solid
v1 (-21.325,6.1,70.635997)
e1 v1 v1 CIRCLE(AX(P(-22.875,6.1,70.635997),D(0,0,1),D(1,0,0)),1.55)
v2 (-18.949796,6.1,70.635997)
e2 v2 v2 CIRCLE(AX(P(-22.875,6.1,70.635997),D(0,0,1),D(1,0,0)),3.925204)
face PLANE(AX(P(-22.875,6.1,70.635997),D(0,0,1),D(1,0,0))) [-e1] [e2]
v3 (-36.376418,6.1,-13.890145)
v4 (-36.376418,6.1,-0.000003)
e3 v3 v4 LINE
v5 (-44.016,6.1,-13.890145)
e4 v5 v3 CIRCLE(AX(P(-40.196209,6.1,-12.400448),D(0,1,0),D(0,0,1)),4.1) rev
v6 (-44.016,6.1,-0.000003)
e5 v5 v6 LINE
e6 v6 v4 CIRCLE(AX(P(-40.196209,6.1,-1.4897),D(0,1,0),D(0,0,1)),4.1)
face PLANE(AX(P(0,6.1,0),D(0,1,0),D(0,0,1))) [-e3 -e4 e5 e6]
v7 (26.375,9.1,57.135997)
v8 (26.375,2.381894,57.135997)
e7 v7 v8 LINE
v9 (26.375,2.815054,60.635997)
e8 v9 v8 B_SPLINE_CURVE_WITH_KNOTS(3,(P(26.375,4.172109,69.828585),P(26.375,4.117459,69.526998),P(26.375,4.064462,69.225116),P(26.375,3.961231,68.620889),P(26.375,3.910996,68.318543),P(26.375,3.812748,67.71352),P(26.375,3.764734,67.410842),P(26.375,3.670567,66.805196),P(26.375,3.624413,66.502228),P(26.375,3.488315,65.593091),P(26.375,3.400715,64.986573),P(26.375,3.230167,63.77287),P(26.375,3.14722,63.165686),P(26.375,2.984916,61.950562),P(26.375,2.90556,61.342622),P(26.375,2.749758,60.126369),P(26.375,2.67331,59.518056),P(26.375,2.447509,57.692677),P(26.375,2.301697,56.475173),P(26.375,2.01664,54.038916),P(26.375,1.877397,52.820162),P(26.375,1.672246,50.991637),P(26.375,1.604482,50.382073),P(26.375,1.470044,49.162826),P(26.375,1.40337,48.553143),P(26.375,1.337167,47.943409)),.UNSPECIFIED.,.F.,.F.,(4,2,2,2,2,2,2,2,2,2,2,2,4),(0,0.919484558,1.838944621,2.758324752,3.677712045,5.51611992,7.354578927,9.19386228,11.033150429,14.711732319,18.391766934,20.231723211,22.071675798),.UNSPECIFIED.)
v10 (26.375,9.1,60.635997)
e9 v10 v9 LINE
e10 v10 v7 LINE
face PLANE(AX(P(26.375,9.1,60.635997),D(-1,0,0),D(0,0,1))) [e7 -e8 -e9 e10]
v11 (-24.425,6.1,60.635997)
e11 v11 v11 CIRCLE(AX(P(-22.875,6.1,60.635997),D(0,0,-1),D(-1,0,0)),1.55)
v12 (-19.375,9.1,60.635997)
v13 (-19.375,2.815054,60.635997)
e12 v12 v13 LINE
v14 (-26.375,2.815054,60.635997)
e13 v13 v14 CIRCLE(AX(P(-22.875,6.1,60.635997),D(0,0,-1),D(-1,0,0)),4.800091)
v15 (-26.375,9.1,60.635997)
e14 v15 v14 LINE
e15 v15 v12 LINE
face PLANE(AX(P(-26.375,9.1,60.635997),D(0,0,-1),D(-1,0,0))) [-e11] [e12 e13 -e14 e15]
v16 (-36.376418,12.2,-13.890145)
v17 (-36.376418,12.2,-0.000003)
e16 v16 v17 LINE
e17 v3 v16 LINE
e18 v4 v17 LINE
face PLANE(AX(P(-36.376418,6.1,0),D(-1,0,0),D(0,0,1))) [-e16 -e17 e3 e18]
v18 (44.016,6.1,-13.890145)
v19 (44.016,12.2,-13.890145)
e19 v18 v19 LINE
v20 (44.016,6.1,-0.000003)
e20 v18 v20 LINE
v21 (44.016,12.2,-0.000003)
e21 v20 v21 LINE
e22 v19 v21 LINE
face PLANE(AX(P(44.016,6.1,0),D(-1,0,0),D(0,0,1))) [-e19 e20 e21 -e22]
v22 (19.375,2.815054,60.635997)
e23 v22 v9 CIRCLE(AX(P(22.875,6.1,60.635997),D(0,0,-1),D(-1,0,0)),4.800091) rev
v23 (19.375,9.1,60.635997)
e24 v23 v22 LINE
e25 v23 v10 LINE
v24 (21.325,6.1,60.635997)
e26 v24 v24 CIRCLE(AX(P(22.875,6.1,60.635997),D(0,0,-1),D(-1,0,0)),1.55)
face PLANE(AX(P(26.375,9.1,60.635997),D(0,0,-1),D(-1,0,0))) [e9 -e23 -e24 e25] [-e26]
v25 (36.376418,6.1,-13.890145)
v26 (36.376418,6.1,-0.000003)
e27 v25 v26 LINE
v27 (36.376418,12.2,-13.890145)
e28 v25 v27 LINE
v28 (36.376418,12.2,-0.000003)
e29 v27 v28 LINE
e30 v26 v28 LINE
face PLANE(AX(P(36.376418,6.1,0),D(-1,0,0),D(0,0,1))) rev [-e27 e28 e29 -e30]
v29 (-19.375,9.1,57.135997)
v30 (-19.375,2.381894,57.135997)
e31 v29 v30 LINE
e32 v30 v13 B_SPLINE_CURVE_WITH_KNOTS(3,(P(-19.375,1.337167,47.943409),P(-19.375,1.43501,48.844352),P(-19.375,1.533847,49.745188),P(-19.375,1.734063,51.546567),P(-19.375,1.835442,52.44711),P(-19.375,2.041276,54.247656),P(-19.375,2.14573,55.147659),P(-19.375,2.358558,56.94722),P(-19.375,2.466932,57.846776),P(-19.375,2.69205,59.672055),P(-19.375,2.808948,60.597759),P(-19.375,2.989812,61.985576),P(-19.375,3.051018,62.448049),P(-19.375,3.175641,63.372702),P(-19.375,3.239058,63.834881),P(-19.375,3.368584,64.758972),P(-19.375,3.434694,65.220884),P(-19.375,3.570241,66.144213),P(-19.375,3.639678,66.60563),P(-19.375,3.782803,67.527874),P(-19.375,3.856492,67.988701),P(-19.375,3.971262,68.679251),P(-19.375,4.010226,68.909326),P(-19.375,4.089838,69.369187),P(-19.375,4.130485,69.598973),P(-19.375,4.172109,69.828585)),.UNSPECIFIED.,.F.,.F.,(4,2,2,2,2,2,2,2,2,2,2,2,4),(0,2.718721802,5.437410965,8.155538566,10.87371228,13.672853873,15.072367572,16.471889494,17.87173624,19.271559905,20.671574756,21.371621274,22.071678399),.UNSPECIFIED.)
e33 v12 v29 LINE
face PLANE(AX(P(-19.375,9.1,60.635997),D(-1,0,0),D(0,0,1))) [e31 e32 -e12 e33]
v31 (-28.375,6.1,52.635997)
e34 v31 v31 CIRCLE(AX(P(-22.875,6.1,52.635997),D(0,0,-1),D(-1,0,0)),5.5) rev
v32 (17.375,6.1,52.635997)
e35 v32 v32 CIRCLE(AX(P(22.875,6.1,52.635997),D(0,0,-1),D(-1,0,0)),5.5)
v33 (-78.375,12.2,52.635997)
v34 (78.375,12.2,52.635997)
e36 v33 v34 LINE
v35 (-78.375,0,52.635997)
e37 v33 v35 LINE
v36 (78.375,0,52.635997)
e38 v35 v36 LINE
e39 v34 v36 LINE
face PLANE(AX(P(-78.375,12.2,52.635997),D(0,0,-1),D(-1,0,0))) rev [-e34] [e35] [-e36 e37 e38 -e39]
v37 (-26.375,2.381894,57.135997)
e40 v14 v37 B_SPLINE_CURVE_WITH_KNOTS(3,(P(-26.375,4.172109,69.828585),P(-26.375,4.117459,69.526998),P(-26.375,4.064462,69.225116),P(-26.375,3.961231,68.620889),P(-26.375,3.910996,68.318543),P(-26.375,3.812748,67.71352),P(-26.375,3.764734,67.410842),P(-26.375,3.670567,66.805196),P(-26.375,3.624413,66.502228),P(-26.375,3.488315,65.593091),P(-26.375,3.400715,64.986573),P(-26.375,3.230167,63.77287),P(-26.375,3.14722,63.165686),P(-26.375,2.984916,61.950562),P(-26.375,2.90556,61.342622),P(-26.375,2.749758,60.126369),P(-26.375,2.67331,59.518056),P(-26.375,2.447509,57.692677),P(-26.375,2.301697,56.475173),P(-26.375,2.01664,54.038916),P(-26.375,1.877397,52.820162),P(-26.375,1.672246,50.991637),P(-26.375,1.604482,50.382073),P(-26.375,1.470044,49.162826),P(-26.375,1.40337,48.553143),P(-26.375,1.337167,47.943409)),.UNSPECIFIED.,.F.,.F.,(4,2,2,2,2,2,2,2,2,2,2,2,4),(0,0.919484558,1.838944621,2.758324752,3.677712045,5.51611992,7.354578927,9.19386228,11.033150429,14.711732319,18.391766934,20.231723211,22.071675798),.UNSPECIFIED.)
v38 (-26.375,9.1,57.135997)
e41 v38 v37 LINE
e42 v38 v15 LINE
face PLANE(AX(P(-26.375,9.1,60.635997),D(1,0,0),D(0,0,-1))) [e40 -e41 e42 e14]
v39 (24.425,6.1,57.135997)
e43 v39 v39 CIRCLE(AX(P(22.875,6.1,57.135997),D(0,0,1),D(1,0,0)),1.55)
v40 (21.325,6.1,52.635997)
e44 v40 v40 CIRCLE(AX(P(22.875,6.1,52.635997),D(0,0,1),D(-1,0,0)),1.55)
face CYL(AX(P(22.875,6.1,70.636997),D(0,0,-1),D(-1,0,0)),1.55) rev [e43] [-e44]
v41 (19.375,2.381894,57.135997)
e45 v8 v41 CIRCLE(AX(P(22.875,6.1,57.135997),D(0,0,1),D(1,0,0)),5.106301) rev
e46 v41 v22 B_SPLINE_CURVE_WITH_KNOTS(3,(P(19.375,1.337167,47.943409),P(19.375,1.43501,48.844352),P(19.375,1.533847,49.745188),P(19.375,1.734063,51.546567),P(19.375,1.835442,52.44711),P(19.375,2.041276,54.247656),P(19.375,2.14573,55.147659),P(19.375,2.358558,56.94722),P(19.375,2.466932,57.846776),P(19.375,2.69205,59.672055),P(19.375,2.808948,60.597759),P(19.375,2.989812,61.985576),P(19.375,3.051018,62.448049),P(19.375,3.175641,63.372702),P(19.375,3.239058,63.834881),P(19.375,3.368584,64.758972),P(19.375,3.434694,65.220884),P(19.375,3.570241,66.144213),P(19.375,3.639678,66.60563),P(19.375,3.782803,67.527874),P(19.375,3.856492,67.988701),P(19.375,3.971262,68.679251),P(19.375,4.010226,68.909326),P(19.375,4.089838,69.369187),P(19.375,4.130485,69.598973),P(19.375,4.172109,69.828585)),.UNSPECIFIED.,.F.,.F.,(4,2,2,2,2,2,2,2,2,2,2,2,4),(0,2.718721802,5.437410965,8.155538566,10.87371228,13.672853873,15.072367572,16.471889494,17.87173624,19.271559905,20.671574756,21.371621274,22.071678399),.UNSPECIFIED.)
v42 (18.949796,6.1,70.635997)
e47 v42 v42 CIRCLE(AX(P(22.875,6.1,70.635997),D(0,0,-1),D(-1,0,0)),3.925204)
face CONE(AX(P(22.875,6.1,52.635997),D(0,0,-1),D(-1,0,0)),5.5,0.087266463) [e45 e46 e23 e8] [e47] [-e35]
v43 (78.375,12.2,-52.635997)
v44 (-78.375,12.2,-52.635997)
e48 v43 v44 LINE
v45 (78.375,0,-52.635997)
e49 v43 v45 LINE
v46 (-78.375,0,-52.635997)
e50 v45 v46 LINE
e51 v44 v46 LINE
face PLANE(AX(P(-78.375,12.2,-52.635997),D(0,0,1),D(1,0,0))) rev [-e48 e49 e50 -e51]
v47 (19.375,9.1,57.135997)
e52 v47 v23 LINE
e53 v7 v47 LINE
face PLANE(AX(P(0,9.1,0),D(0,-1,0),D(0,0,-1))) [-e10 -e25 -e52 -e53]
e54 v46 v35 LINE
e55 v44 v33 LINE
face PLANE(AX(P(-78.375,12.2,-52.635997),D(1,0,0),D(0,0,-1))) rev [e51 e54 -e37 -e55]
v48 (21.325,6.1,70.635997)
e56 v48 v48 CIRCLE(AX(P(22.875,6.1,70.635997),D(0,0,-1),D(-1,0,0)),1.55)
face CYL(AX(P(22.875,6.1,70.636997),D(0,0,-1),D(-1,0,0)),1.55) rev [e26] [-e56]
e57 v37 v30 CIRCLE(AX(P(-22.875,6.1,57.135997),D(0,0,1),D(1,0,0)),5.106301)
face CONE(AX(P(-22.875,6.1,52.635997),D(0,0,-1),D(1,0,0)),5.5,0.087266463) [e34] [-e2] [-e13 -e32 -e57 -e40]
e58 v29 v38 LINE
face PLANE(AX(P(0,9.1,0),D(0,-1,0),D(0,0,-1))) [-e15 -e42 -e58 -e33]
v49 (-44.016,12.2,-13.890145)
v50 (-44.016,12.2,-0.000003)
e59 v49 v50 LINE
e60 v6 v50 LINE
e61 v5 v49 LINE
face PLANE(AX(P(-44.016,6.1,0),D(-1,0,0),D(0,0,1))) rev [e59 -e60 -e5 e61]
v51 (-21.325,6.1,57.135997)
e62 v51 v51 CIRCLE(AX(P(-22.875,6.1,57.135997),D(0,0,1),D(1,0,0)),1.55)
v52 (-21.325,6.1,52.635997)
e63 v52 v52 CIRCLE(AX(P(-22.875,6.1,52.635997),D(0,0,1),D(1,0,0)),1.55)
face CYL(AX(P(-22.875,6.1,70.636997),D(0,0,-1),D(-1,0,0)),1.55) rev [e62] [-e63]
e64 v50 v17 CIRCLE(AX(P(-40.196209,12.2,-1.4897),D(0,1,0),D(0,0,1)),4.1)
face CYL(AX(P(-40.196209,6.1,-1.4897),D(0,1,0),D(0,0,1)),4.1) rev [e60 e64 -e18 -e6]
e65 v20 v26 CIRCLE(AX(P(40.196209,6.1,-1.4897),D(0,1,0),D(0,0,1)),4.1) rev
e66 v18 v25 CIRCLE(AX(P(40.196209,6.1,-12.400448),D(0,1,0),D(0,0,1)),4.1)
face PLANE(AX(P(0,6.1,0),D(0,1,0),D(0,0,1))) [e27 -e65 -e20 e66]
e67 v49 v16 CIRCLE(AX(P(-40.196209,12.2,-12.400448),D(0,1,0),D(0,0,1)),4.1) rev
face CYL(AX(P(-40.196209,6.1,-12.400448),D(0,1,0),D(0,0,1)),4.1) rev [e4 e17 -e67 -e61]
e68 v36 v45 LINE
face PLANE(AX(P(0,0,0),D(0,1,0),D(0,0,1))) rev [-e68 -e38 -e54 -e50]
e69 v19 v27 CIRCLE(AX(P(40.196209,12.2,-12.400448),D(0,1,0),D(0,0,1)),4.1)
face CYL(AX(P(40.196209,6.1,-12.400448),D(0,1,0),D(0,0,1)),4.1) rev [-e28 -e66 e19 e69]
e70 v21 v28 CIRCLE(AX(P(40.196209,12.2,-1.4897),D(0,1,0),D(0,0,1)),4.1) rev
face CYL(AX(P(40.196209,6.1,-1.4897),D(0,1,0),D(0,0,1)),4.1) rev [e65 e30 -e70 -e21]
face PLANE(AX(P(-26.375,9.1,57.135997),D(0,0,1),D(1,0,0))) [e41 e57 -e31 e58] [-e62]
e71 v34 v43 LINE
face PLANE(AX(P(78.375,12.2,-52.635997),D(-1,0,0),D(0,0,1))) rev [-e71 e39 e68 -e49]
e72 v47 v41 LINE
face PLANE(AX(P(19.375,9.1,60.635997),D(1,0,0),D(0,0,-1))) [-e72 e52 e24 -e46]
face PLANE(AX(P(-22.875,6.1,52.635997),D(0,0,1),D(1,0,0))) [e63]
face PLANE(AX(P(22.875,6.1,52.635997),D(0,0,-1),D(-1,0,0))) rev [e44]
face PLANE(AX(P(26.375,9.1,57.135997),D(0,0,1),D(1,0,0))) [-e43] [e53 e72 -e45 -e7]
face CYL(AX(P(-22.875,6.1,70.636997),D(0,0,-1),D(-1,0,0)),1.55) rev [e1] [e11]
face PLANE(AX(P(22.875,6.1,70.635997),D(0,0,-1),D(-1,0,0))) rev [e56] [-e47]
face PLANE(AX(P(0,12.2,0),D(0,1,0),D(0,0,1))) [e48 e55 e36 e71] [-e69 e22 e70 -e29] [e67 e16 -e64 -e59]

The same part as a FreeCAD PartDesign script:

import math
import FreeCAD as App
import Part
import Sketcher
from FreeCAD import Vector

doc = App.newDocument("Part")
body = doc.addObject("PartDesign::Body", "Body")

# Sketch on XZ plane
sketch1 = body.newObject("Sketcher::SketchObject", "Sketch")
sketch1.AttachmentSupport = (doc.getObject("XZ_Plane"), [""])
sketch1.MapMode = "FlatFace"
sketch1.addGeometry([
    Part.LineSegment(Vector(-78, -53, 0), Vector(-78, 53, 0)),
    Part.LineSegment(Vector(-78, 53, 0), Vector(78, 53, 0)),
    Part.LineSegment(Vector(78, 53, 0), Vector(78, -53, 0)),
    Part.LineSegment(Vector(78, -53, 0), Vector(-78, -53, 0)),
], False)
sketch1.addConstraint([
    Sketcher.Constraint("Coincident", 0, 2, 1, 1),
    Sketcher.Constraint("Coincident", 1, 2, 2, 1),
    Sketcher.Constraint("Coincident", 2, 2, 3, 1),
    Sketcher.Constraint("Coincident", 3, 2, 0, 1),
    Sketcher.Constraint("Vertical", 0),
    Sketcher.Constraint("Horizontal", 1),
    Sketcher.Constraint("Vertical", 2),
    Sketcher.Constraint("Horizontal", 3),
    Sketcher.Constraint("Symmetric", 0, 2, 2, 2, -1, 1),
    Sketcher.Constraint("DistanceX", 1, 1, 1, 2, 156.75),
    Sketcher.Constraint("DistanceY", 0, 1, 0, 2, 105.271995),
])
pad1 = body.newObject("PartDesign::Pad", "Pad")
pad1.Profile = sketch1
pad1.Length = 12.2
pad1.Reversed = True

# Sketch on XZ plane
sketch2 = body.newObject("Sketcher::SketchObject", "Sketch001")
sketch2.AttachmentSupport = (doc.getObject("XZ_Plane"), [""])
sketch2.MapMode = "FlatFace"
sketch2.AttachmentOffset = App.Placement(Vector(0, 0, -12.2), App.Rotation())
sketch2.addGeometry([
    Part.ArcOfCircle(Part.Circle(Vector(-40.2, -12.4, 0), Vector(0, 0, 1), 4.1), math.radians(-159), math.radians(-21)),  # 0
    Part.LineSegment(Vector(-44, -13.9, 0), Vector(-44, 0, 0)),  # 1
    Part.ArcOfCircle(Part.Circle(Vector(-40.2, -1.5, 0), Vector(0, 0, 1), 4.1), math.radians(21), math.radians(159)),  # 2
    Part.LineSegment(Vector(-36.4, 0, 0), Vector(-36.4, -13.9, 0)),  # 3
    Part.ArcOfCircle(Part.Circle(Vector(40.2, -12.4, 0), Vector(0, 0, 1), 4.1), math.radians(-159), math.radians(-21)),  # 4
    Part.LineSegment(Vector(36.4, -13.9, 0), Vector(36.4, 0, 0)),  # 5
    Part.ArcOfCircle(Part.Circle(Vector(40.2, -1.5, 0), Vector(0, 0, 1), 4.1), math.radians(21), math.radians(159)),  # 6
    Part.LineSegment(Vector(44, 0, 0), Vector(44, -13.9, 0)),  # 7
], False)
sketch2.addConstraint([
    Sketcher.Constraint("Coincident", 0, 1, 1, 1),
    Sketcher.Constraint("Coincident", 1, 2, 2, 2),
    Sketcher.Constraint("Coincident", 2, 1, 3, 1),
    Sketcher.Constraint("Coincident", 3, 2, 0, 2),
    Sketcher.Constraint("Coincident", 4, 1, 5, 1),
    Sketcher.Constraint("Coincident", 5, 2, 6, 2),
    Sketcher.Constraint("Coincident", 6, 1, 7, 1),
    Sketcher.Constraint("Coincident", 7, 2, 4, 2),
    Sketcher.Constraint("Vertical", 1),
    Sketcher.Constraint("Vertical", 3),
    Sketcher.Constraint("Vertical", 5),
    Sketcher.Constraint("Vertical", 7),
    Sketcher.Constraint("Equal", 0, 2),
    Sketcher.Constraint("Equal", 2, 4),
    Sketcher.Constraint("Equal", 4, 6),
    Sketcher.Constraint("Symmetric", 2, 1, 5, 2, -1, 1),
    Sketcher.Constraint("Symmetric", 1, 2, 6, 1, -1, 1),
    Sketcher.Constraint("Symmetric", 0, 3, 4, 3, -2),
    Sketcher.Constraint("Symmetric", 2, 3, 6, 3, -2),
    Sketcher.Constraint("Horizontal", 0, 1, 3, 2),
    Sketcher.Constraint("Radius", 0, 4.1),
    Sketcher.Constraint("DistanceX", 0, 1, -1, 1, 44.016),
    Sketcher.Constraint("DistanceY", 2, 3, -1, 1, 1.4897),
    Sketcher.Constraint("DistanceY", 1, 1, 1, 2, 13.890142),
])
pocket1 = body.newObject("PartDesign::Pocket", "Pocket")
pocket1.Profile = sketch2
pocket1.Length = 6.1
pocket1.Reversed = True

# Sketch on XY plane
sketch3 = body.newObject("Sketcher::SketchObject", "Sketch002")
sketch3.AttachmentSupport = (doc.getObject("XY_Plane"), [""])
sketch3.MapMode = "FlatFace"
sketch3.AttachmentOffset = App.Placement(Vector(0, 0, 52.635997), App.Rotation())
sketch3.addGeometry([
    Part.Circle(Vector(-23, 6, 0), Vector(0, 0, 1), 6),
    Part.Circle(Vector(23, 6, 0), Vector(0, 0, 1), 6),
], False)
sketch3.addConstraint([
    Sketcher.Constraint("Equal", 0, 1),
    Sketcher.Constraint("Symmetric", 0, 3, 1, 3, -2),
    Sketcher.Constraint("Diameter", 0, 11.0),
    Sketcher.Constraint("DistanceY", -1, 1, 0, 3, 6.1),
    Sketcher.Constraint("DistanceX", 0, 3, 1, 3, 45.75),
])
pad2 = body.newObject("PartDesign::Pad", "Pad001")
pad2.Profile = sketch3
pad2.Length = 18
pad2.TaperAngle = -5

# Sketch on XY plane
sketch4 = body.newObject("Sketcher::SketchObject", "Sketch003")
sketch4.AttachmentSupport = (doc.getObject("XY_Plane"), [""])
sketch4.MapMode = "FlatFace"
sketch4.AttachmentOffset = App.Placement(Vector(0, 0, 52.635997), App.Rotation())
sketch4.addGeometry(Part.Circle(Vector(-22.9, 6.1, 0), Vector(0, 0, 1), 1.6), False)
sketch4.addConstraint([
    Sketcher.Constraint("Diameter", 0, 3.1),
    Sketcher.Constraint("DistanceY", -1, 1, 0, 3, 6.1),
    Sketcher.Constraint("DistanceX", 0, 3, -1, 1, 22.875),
])
pocket2 = body.newObject("PartDesign::Pocket", "Pocket001")
pocket2.Profile = sketch4
pocket2.Type = "UpToFirst"
pocket2.Reversed = True

# Sketch on XY plane
sketch5 = body.newObject("Sketcher::SketchObject", "Sketch004")
sketch5.AttachmentSupport = (doc.getObject("XY_Plane"), [""])
sketch5.MapMode = "FlatFace"
sketch5.AttachmentOffset = App.Placement(Vector(0, 0, 52.635997), App.Rotation())
sketch5.addGeometry(Part.Circle(Vector(22.9, 6.1, 0), Vector(0, 0, 1), 1.6), False)
sketch5.addConstraint([
    Sketcher.Constraint("Diameter", 0, 3.1),
    Sketcher.Constraint("DistanceY", -1, 1, 0, 3, 6.1),
    Sketcher.Constraint("DistanceX", -1, 1, 0, 3, 22.875),
])
pocket3 = body.newObject("PartDesign::Pocket", "Pocket002")
pocket3.Profile = sketch5
pocket3.Type = "UpToFirst"
pocket3.Reversed = True

# Sketch on XZ plane
sketch6 = body.newObject("Sketcher::SketchObject", "Sketch005")
sketch6.AttachmentSupport = (doc.getObject("XZ_Plane"), [""])
sketch6.MapMode = "FlatFace"
sketch6.addGeometry([
    Part.LineSegment(Vector(-26.4, 57.1, 0), Vector(-26.4, 60.6, 0)),  # 0
    Part.LineSegment(Vector(-26.4, 60.6, 0), Vector(-19.4, 60.6, 0)),  # 1
    Part.LineSegment(Vector(-19.4, 60.6, 0), Vector(-19.4, 57.1, 0)),  # 2
    Part.LineSegment(Vector(-19.4, 57.1, 0), Vector(-26.4, 57.1, 0)),  # 3
    Part.LineSegment(Vector(19.4, 57.1, 0), Vector(19.4, 60.6, 0)),  # 4
    Part.LineSegment(Vector(19.4, 60.6, 0), Vector(26.4, 60.6, 0)),  # 5
    Part.LineSegment(Vector(26.4, 60.6, 0), Vector(26.4, 57.1, 0)),  # 6
    Part.LineSegment(Vector(26.4, 57.1, 0), Vector(19.4, 57.1, 0)),  # 7
], False)
sketch6.addConstraint([
    Sketcher.Constraint("Coincident", 0, 2, 1, 1),
    Sketcher.Constraint("Coincident", 1, 2, 2, 1),
    Sketcher.Constraint("Coincident", 2, 2, 3, 1),
    Sketcher.Constraint("Coincident", 3, 2, 0, 1),
    Sketcher.Constraint("Coincident", 4, 2, 5, 1),
    Sketcher.Constraint("Coincident", 5, 2, 6, 1),
    Sketcher.Constraint("Coincident", 6, 2, 7, 1),
    Sketcher.Constraint("Coincident", 7, 2, 4, 1),
    Sketcher.Constraint("Vertical", 0),
    Sketcher.Constraint("Horizontal", 1),
    Sketcher.Constraint("Vertical", 2),
    Sketcher.Constraint("Horizontal", 3),
    Sketcher.Constraint("Vertical", 4),
    Sketcher.Constraint("Horizontal", 5),
    Sketcher.Constraint("Vertical", 6),
    Sketcher.Constraint("Horizontal", 7),
    Sketcher.Constraint("Symmetric", 1, 2, 4, 2, -2),
    Sketcher.Constraint("Symmetric", 3, 2, 6, 2, -2),
    Sketcher.Constraint("DistanceX", 1, 1, 1, 2, 7.0),
    Sketcher.Constraint("DistanceY", 0, 1, 0, 2, 3.5),
    Sketcher.Constraint("DistanceX", 1, 2, 4, 2, 38.75),
    Sketcher.Constraint("DistanceY", -1, 1, 0, 2, 60.635997),
])
pocket4 = body.newObject("PartDesign::Pocket", "Pocket003")
pocket4.Profile = sketch6
pocket4.Length = 9.1

doc.recompute()
